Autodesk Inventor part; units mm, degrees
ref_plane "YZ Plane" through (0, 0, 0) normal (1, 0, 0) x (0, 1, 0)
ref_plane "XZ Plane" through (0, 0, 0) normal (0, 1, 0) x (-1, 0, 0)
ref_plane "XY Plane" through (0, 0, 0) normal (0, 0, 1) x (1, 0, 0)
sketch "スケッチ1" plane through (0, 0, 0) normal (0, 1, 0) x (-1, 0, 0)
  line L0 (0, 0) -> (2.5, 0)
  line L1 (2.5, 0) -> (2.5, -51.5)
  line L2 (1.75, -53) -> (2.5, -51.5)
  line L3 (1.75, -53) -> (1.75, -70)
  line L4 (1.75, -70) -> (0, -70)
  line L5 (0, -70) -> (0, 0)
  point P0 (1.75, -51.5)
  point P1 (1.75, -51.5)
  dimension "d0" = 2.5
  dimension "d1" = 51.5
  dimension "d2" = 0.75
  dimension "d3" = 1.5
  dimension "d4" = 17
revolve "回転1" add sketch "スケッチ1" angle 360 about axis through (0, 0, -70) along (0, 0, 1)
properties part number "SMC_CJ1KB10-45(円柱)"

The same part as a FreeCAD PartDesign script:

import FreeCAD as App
import Part
import Sketcher
from FreeCAD import Vector


def add_polygon(sketch, points):
    """Adds a closed chain of lines whose ends are joined by coincident constraints."""
    first, n = sketch.GeometryCount, len(points)
    for a, b in zip(points, points[1:] + points[:1]):
        sketch.addGeometry(Part.LineSegment(App.Vector(*a, 0), App.Vector(*b, 0)), False)
    for i in range(n):
        sketch.addConstraint(Sketcher.Constraint("Coincident", first + i, 2, first + (i + 1) % n, 1))

doc = App.newDocument("Part")
body = doc.addObject("PartDesign::Body", "Body")

# Sketch on XZ plane
sketch1 = body.newObject("Sketcher::SketchObject", "Sketch")
sketch1.AttachmentSupport = (doc.getObject("XZ_Plane"), [""])
sketch1.MapMode = "FlatFace"
add_polygon(sketch1, [(-2.5, 0), (0, 0), (0, -70), (-1.8, -70), (-1.8, -53), (-2.5, -51.5)])  # lines 0-5
sketch1.addConstraint(Sketcher.Constraint("Horizontal", 0))
sketch1.addConstraint(Sketcher.Constraint("Vertical", 1))
sketch1.addConstraint(Sketcher.Constraint("Horizontal", 2))
sketch1.addConstraint(Sketcher.Constraint("Vertical", 3))
sketch1.addConstraint(Sketcher.Constraint("Vertical", 5))
sketch1.addConstraint(Sketcher.Constraint("Coincident", 0, 2, -1, 1))
sketch1.addConstraint(Sketcher.Constraint("DistanceY", 3, 1, 3, 2, 17.0))
sketch1.addConstraint(Sketcher.Constraint("DistanceX", 0, 1, 0, 2, 2.5))
sketch1.addConstraint(Sketcher.Constraint("DistanceY", 5, 1, 5, 2, 51.5))
sketch1.addConstraint(Sketcher.Constraint("DistanceY", 3, 2, 4, 2, 1.5))
sketch1.addConstraint(Sketcher.Constraint("DistanceX", 4, 2, 3, 2, 0.75))
revolution = body.newObject("PartDesign::Revolution", "Revolution")
revolution.Profile = sketch1
revolution.ReferenceAxis = (sketch1, ["V_Axis"])
revolution.Angle = 360

doc.recompute()
